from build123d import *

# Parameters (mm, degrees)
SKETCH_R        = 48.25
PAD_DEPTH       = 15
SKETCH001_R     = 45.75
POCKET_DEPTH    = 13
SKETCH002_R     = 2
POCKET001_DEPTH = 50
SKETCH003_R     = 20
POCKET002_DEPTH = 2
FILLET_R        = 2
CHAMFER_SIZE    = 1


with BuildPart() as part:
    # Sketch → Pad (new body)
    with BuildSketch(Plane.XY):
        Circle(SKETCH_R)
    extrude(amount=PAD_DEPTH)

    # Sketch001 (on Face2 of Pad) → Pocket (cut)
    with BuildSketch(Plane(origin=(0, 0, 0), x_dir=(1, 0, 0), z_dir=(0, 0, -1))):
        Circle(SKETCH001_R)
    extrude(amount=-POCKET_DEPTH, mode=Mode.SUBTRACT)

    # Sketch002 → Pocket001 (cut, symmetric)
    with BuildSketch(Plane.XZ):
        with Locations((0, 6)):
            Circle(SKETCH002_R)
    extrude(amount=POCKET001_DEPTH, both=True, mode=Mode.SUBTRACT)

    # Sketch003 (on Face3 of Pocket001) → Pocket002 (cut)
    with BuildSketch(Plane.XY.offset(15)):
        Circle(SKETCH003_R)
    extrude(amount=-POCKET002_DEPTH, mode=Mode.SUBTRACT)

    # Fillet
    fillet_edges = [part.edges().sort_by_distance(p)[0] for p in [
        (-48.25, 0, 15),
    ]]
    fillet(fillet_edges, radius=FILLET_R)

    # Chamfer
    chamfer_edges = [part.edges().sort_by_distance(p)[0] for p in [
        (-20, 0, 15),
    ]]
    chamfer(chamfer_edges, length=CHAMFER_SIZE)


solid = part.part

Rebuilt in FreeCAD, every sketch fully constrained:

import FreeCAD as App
import Part
import Sketcher
Q = App.Units.Quantity


def edges_at(feature, points):
    """Names of the edges that pass closest to the given points."""
    edges = feature.Shape.Edges
    near = lambda p: min(range(len(edges)), key=lambda i: edges[i].distToShape(Part.Vertex(*p))[0])
    return sorted({f"Edge{near(p) + 1}" for p in points})

doc = App.newDocument("Part")
body = doc.addObject("PartDesign::Body", "Body")

# Sketch on XY plane
sketch1 = doc.addObject("Sketcher::SketchObject", "Sketch")
body.addObject(sketch1)
sketch1.AttachmentSupport = (doc.XY_Plane, [""])
sketch1.MapMode = "FlatFace"
sketch1.addGeometry(Part.Circle(App.Vector(0, 0, 0), App.Vector(0, 0, 1), 48.25), False)
sketch1.addConstraint([
    Sketcher.Constraint("Coincident", 0, 3, -1, 1),
    Sketcher.Constraint("Diameter", 0, Q("96.5 mm")),
])
pad1 = doc.addObject("PartDesign::Pad", "Pad")
body.addObject(pad1)
pad1.Profile = sketch1
pad1.Length = 15

# Sketch on XY plane
sketch2 = doc.addObject("Sketcher::SketchObject", "Sketch001")
body.addObject(sketch2)
sketch2.AttachmentSupport = (doc.XY_Plane, [""])
sketch2.MapMode = "FlatFace"
sketch2.addGeometry(Part.Circle(App.Vector(0, 0, 0), App.Vector(0, 0, 1), 45.75), False)
sketch2.addConstraint([
    Sketcher.Constraint("Coincident", 0, 3, -1, 1),
    Sketcher.Constraint("Diameter", 0, Q("91.5 mm")),
])
pocket1 = doc.addObject("PartDesign::Pocket", "Pocket")
body.addObject(pocket1)
pocket1.Profile = sketch2
pocket1.Length = 13
pocket1.Reversed = True

# Sketch on XZ plane
sketch3 = doc.addObject("Sketcher::SketchObject", "Sketch002")
body.addObject(sketch3)
sketch3.AttachmentSupport = (doc.XZ_Plane, [""])
sketch3.MapMode = "FlatFace"
sketch3.addGeometry(Part.Circle(App.Vector(0, 6, 0), App.Vector(0, 0, 1), 2), False)
sketch3.addConstraint([
    Sketcher.Constraint("PointOnObject", 0, 3, -2),
    Sketcher.Constraint("Diameter", 0, Q("4 mm")),
    Sketcher.Constraint("DistanceY", -1, 1, 0, 3, Q("6 mm")),
])
pocket2 = doc.addObject("PartDesign::Pocket", "Pocket001")
body.addObject(pocket2)
pocket2.Profile = sketch3
pocket2.Length = 100
pocket2.Midplane = True

# Sketch on XY plane
sketch4 = doc.addObject("Sketcher::SketchObject", "Sketch003")
body.addObject(sketch4)
sketch4.AttachmentSupport = (doc.XY_Plane, [""])
sketch4.MapMode = "FlatFace"
sketch4.AttachmentOffset = App.Placement(App.Vector(0, 0, 15), App.Rotation())
sketch4.addGeometry(Part.Circle(App.Vector(0, 0, 0), App.Vector(0, 0, 1), 20), False)
sketch4.addConstraint([
    Sketcher.Constraint("Coincident", 0, 3, -1, 1),
    Sketcher.Constraint("Diameter", 0, Q("40 mm")),
])
pocket3 = doc.addObject("PartDesign::Pocket", "Pocket002")
body.addObject(pocket3)
pocket3.Profile = sketch4
pocket3.Length = 2
doc.recompute()

fillet = doc.addObject("PartDesign::Fillet", "Fillet")
body.addObject(fillet)
fillet.Base = (pocket3, edges_at(pocket3, [(-48.25, 0, 15)]))
fillet.Radius = 2
doc.recompute()

chamfer = doc.addObject("PartDesign::Chamfer", "Chamfer")
body.addObject(chamfer)
chamfer.Base = (fillet, edges_at(fillet, [(-20, 0, 15)]))
chamfer.Size = 1

doc.recompute()
